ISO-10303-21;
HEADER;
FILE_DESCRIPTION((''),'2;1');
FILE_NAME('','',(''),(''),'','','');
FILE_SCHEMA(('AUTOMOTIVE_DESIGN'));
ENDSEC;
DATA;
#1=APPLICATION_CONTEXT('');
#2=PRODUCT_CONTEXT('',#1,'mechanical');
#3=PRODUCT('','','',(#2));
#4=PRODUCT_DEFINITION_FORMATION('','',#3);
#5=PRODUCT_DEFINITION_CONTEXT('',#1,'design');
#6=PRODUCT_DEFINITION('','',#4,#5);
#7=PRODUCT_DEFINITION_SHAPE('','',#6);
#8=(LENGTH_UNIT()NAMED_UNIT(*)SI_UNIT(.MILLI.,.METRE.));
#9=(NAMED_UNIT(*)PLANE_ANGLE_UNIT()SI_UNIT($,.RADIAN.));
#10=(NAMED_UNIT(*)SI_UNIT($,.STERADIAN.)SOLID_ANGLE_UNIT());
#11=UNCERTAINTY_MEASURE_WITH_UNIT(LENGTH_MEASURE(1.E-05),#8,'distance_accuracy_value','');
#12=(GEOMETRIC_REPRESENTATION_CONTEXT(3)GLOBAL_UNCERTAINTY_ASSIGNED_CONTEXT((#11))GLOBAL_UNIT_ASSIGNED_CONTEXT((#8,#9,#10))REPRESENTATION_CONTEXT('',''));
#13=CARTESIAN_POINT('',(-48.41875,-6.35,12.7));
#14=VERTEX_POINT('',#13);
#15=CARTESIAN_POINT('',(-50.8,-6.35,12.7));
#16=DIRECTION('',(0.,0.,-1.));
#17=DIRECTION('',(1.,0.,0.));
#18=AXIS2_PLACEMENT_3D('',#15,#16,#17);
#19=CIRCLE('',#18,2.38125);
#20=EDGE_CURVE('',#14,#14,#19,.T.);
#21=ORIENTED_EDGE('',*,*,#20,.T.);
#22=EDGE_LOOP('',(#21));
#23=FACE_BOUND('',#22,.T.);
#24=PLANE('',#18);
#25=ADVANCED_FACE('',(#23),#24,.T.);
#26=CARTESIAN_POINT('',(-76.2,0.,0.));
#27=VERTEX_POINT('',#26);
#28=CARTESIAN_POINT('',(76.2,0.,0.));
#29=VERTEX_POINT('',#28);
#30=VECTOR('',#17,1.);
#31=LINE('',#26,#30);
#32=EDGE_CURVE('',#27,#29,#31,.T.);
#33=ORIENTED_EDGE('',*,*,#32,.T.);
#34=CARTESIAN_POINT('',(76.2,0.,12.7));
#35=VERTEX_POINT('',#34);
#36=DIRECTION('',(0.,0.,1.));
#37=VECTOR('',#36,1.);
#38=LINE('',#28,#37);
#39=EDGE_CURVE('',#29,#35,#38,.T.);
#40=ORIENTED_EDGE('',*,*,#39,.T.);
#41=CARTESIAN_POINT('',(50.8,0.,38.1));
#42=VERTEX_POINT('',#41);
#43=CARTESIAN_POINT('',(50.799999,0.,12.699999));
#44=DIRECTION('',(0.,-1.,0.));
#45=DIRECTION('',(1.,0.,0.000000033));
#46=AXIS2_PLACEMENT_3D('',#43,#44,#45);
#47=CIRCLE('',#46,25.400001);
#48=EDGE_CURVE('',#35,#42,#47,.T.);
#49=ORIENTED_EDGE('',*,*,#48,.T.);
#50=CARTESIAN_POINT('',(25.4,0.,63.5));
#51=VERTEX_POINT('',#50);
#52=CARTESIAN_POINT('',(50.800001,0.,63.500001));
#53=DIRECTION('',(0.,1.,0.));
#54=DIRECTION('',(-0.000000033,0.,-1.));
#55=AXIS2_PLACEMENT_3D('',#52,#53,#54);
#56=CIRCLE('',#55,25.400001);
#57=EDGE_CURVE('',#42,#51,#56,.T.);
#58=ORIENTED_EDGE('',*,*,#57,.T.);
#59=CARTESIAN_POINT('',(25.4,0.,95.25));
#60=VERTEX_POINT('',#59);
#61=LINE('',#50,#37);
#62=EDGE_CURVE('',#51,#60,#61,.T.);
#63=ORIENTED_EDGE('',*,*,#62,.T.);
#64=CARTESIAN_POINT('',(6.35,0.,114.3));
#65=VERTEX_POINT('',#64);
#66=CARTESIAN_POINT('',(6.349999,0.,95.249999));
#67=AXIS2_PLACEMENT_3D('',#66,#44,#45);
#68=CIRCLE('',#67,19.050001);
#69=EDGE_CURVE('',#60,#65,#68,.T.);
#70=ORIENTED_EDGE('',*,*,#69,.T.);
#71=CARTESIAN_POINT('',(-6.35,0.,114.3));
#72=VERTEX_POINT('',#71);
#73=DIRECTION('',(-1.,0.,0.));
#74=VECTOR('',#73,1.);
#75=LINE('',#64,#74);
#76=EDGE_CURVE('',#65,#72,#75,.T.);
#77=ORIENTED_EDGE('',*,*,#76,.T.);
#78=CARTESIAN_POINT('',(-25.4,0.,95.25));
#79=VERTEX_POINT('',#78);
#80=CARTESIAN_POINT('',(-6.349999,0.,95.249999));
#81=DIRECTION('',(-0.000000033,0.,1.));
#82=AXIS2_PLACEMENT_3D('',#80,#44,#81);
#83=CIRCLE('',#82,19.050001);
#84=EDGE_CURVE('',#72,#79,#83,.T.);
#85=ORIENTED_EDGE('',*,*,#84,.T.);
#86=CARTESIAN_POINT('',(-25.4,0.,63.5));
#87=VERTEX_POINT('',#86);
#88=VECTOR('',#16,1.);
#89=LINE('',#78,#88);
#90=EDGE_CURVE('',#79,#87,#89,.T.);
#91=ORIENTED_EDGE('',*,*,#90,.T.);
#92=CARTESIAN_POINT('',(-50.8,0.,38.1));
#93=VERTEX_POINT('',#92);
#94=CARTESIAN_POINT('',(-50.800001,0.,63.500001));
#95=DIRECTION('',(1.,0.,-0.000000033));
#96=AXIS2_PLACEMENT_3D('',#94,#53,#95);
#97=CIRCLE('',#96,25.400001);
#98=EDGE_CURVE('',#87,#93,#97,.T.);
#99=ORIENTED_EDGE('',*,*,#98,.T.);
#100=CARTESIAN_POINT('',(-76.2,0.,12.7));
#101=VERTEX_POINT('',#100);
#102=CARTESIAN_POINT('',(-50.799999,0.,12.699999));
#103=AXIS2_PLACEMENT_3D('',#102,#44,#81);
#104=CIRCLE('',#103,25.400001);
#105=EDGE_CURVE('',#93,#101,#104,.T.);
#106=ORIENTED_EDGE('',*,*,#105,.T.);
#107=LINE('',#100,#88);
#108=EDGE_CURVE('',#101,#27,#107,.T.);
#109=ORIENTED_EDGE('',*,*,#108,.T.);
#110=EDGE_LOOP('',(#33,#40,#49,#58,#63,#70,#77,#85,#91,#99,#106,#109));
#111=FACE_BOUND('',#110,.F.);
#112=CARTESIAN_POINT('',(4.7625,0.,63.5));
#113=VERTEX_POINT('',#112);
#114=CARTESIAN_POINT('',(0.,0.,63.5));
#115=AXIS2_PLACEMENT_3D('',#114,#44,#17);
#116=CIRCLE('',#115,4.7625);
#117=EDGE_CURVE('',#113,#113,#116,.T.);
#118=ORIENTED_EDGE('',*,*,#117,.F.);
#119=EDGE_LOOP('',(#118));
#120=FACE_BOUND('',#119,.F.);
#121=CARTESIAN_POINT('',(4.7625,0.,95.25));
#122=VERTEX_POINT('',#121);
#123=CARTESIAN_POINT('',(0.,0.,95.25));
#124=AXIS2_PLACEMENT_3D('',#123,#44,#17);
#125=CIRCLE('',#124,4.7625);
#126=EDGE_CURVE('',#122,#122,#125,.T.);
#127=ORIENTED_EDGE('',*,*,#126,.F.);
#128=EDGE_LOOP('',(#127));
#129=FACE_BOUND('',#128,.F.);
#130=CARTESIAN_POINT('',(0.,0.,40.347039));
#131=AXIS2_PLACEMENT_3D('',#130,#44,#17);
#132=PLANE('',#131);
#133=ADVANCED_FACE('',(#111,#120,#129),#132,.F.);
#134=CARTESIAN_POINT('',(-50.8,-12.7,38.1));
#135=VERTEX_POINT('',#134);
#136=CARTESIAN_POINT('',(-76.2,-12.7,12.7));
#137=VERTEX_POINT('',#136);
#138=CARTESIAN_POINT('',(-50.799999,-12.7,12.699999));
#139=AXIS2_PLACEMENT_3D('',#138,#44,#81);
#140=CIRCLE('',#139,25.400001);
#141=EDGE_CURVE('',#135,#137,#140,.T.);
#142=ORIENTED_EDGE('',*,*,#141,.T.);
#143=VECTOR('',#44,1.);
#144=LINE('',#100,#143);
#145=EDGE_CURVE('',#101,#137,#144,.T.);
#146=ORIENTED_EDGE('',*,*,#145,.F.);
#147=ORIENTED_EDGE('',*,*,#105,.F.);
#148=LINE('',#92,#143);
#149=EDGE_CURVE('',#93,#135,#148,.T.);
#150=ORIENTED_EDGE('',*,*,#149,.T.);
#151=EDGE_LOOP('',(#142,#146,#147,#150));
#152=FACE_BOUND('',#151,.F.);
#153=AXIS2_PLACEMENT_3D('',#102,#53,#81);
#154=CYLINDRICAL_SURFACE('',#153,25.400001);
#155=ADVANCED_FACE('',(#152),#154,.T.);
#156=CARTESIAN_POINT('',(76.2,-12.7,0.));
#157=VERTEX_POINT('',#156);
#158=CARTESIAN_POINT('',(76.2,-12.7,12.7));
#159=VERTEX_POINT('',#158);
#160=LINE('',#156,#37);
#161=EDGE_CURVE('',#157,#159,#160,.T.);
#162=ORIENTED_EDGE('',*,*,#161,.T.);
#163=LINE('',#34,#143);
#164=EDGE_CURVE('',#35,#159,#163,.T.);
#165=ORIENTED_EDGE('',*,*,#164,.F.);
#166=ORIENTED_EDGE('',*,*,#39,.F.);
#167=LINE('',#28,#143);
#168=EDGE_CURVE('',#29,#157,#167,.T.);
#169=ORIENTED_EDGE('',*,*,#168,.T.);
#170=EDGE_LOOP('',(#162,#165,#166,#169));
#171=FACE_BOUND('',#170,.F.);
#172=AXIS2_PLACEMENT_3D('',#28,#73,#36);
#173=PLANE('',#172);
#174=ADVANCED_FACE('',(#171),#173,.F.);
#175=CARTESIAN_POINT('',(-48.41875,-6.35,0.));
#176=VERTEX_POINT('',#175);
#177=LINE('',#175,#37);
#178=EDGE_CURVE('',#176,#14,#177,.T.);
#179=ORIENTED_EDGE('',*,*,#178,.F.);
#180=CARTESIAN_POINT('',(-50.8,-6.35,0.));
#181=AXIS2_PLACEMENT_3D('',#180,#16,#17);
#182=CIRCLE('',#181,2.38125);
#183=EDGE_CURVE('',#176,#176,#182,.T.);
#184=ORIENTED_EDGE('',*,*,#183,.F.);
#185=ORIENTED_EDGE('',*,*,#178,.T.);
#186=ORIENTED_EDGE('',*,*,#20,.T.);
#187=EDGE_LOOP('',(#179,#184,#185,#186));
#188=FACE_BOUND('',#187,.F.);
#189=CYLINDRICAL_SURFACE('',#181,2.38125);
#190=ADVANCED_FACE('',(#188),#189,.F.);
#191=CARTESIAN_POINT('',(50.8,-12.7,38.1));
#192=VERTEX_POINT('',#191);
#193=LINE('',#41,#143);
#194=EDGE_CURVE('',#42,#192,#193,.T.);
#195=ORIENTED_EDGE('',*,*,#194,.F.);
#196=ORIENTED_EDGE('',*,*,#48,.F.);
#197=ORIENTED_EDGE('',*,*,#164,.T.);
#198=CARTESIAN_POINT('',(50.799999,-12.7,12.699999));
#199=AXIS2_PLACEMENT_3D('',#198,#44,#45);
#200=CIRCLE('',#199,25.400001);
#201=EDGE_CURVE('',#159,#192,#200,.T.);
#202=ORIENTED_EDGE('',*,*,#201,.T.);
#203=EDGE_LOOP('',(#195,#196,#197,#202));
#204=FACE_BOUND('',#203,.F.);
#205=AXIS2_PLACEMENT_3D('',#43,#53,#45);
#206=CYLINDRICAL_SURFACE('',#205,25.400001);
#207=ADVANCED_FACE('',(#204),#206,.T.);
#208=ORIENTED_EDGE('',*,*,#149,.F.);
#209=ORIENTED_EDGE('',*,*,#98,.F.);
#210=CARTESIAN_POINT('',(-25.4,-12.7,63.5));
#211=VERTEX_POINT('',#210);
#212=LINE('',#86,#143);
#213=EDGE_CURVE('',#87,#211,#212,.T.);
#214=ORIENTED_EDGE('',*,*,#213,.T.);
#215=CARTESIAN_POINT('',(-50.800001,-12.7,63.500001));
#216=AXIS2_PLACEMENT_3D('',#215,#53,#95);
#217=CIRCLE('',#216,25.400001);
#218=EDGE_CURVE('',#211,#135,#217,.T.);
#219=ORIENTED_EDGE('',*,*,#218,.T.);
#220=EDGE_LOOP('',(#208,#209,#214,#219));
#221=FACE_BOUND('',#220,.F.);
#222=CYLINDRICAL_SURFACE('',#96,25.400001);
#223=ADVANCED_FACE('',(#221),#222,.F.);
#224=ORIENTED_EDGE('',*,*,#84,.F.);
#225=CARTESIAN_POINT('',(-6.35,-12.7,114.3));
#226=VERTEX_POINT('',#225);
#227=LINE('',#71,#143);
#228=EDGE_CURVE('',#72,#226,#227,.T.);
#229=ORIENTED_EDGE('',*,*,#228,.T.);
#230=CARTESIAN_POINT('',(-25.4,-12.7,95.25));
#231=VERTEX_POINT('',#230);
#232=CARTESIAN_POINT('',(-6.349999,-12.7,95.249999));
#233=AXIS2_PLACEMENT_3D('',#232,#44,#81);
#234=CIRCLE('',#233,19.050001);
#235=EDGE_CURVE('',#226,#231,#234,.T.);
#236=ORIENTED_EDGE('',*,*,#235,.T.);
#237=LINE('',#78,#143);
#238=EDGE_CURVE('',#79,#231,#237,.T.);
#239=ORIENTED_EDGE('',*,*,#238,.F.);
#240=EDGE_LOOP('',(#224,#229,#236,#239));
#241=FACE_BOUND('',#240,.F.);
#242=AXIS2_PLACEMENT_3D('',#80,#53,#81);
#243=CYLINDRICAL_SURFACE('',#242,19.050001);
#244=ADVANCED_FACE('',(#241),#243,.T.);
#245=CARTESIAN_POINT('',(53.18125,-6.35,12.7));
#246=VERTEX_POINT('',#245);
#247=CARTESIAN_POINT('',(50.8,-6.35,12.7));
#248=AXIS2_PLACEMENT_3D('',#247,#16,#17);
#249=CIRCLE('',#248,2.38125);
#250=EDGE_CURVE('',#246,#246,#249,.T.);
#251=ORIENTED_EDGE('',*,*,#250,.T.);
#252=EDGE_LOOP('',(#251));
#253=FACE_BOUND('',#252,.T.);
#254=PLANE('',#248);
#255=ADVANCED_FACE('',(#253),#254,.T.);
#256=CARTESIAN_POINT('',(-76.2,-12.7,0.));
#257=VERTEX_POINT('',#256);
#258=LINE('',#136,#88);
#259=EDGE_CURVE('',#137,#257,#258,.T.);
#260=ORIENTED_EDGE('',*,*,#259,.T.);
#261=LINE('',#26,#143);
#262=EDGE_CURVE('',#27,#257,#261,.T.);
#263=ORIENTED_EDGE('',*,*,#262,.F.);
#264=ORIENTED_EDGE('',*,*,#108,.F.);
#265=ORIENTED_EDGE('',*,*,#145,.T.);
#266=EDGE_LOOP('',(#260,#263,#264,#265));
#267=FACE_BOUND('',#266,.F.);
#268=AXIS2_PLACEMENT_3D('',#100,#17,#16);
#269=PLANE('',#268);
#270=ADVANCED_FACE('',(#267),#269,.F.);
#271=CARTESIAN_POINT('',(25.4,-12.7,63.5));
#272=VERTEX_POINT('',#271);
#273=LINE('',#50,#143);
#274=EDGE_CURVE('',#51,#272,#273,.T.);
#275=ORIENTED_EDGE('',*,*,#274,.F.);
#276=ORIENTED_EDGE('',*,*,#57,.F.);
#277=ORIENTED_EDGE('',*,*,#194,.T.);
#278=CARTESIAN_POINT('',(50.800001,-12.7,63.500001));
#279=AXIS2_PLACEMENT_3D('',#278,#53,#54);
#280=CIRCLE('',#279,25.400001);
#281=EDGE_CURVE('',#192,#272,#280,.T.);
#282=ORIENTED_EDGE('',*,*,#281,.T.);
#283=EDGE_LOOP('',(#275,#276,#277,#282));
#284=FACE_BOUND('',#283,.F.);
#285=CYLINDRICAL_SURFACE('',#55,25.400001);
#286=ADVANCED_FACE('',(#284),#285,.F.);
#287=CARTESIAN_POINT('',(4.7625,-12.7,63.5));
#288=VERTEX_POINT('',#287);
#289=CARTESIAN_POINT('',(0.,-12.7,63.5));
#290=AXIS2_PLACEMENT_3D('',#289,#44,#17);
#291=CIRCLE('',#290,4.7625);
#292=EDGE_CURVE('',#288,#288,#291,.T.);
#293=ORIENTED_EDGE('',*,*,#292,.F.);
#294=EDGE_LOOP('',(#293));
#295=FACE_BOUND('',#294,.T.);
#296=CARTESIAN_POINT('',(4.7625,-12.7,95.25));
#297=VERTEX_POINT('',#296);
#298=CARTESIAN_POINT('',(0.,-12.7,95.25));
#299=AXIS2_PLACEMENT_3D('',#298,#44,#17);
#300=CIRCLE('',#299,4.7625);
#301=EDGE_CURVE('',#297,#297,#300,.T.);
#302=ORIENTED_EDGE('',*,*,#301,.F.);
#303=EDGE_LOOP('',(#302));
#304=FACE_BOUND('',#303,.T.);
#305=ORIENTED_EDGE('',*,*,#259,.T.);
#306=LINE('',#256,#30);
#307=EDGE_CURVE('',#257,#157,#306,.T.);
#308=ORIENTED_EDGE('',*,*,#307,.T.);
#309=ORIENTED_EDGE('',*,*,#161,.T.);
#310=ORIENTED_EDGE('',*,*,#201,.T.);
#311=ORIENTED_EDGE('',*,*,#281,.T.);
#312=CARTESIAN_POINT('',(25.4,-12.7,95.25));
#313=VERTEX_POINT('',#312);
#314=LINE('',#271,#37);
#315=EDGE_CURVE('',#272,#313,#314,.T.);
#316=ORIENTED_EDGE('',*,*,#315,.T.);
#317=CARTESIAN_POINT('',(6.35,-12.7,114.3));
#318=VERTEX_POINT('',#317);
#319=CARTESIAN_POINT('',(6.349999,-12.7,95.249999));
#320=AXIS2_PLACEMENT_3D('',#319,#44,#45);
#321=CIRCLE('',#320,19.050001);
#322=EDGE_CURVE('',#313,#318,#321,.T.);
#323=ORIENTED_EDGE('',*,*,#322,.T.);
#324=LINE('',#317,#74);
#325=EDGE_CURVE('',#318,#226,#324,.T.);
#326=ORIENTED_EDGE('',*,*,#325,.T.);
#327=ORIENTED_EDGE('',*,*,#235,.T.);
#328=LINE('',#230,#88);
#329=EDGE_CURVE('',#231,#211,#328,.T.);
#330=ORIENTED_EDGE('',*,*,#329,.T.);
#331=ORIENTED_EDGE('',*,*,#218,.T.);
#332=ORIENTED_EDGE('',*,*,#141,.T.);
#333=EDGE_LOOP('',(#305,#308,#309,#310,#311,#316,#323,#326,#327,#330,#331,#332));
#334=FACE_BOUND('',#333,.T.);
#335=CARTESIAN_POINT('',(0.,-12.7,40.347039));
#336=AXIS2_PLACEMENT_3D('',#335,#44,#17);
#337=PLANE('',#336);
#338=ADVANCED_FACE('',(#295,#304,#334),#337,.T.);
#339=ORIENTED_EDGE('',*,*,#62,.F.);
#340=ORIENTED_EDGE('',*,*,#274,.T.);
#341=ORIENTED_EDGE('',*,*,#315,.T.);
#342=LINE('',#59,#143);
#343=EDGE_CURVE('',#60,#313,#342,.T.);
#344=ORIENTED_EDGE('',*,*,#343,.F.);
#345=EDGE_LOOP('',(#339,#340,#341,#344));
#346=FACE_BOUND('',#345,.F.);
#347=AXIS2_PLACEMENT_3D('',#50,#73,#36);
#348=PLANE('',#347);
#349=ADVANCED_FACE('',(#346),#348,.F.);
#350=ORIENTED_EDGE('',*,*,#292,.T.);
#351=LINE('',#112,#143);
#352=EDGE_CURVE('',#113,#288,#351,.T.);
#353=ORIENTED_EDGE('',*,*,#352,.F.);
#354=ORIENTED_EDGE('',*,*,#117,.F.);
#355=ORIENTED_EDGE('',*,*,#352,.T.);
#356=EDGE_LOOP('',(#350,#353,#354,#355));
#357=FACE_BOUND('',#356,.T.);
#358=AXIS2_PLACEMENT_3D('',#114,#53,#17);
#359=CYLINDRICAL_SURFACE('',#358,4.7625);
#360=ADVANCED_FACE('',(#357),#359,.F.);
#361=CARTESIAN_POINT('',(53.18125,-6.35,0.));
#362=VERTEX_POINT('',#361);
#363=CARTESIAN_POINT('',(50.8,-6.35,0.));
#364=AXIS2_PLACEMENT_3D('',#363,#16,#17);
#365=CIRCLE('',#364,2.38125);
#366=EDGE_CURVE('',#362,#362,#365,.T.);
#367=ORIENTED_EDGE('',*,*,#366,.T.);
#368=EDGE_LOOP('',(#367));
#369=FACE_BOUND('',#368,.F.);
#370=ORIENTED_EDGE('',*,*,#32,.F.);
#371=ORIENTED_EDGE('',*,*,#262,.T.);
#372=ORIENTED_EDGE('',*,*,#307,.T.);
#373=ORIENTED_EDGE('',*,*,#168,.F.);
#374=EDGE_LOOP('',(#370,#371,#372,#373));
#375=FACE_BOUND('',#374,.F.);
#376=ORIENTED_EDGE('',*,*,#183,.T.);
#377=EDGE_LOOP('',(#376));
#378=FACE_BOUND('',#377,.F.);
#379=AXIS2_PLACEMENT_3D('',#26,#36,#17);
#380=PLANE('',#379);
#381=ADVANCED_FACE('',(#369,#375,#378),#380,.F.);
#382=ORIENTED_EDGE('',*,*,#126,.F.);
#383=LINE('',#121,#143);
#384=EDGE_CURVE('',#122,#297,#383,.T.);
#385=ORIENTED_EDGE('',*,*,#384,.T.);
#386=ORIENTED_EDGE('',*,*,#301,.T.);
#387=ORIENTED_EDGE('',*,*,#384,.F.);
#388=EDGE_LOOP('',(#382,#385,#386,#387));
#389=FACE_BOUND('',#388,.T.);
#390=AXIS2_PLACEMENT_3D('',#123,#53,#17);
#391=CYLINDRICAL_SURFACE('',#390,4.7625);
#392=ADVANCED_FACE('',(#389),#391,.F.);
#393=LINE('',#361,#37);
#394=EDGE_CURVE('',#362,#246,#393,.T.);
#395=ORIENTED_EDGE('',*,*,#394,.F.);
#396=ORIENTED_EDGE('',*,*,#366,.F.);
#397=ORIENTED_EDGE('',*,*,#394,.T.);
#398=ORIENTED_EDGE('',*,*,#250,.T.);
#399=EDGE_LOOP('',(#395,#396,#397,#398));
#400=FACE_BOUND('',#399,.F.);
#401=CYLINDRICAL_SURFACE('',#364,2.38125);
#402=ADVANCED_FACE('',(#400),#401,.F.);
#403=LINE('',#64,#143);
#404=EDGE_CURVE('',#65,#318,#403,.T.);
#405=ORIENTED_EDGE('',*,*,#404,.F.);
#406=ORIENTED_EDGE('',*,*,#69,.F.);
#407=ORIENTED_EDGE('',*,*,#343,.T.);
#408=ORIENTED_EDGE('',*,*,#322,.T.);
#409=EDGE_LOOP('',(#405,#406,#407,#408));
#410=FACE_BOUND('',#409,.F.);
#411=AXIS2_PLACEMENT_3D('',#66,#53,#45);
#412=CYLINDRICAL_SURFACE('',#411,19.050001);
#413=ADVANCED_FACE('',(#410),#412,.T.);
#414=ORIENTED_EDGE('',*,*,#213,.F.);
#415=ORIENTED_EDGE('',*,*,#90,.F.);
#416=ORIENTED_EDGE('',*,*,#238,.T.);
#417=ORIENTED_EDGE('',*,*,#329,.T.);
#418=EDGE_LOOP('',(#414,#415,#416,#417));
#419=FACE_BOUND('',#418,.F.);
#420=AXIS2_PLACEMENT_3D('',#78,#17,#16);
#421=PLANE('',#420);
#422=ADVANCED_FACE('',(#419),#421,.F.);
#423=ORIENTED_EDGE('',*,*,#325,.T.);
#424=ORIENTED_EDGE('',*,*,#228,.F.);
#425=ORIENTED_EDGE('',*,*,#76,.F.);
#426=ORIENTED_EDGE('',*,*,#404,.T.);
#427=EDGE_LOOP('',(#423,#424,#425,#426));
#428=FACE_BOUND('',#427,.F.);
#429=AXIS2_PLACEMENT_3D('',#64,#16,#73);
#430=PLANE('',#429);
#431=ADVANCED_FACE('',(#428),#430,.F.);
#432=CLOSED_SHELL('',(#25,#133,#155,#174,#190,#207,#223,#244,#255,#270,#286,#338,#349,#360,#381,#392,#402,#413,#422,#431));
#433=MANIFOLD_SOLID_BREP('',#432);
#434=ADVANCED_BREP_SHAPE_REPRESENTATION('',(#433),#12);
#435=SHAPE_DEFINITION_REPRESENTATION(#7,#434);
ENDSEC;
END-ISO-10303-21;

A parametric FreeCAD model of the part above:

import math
import FreeCAD as App
import Part
import Sketcher

V = App.Vector
Q = App.Units.Quantity

doc = App.newDocument("Part")
body = doc.addObject("PartDesign::Body", "Body")

# Sketch on XZ plane
sketch1 = doc.addObject("Sketcher::SketchObject", "Sketch")
body.addObject(sketch1)
sketch1.AttachmentSupport = (doc.XZ_Plane, [""])
sketch1.MapMode = "FlatFace"
sketch1.addGeometry(Part.LineSegment(V(-76.2, 12.7, 0), V(-76.2, 0, 0)), False)
sketch1.addGeometry(Part.LineSegment(V(-76.2, 0, 0), V(76.2, 0, 0)), False)
sketch1.addGeometry(Part.LineSegment(V(76.2, 0, 0), V(76.2, 12.7, 0)), False)
sketch1.addGeometry(Part.ArcOfCircle(Part.Circle(V(50.8, 12.7, 0), V(0, 0, 1), 25.4), math.radians(0), math.radians(90)), False)
sketch1.addGeometry(Part.ArcOfCircle(Part.Circle(V(50.8, 63.5, 0), V(0, 0, 1), 25.4), math.radians(-180), math.radians(-90)), False)
sketch1.addGeometry(Part.LineSegment(V(25.4, 63.5, 0), V(25.4, 95.2, 0)), False)
sketch1.addGeometry(Part.ArcOfCircle(Part.Circle(V(6.3, 95.2, 0), V(0, 0, 1), 19.1), math.radians(0), math.radians(90)), False)
sketch1.addGeometry(Part.LineSegment(V(6.3, 114.3, 0), V(-6.3, 114.3, 0)), False)
sketch1.addGeometry(Part.ArcOfCircle(Part.Circle(V(-6.3, 95.2, 0), V(0, 0, 1), 19.1), math.radians(90), math.radians(180)), False)
sketch1.addGeometry(Part.LineSegment(V(-25.4, 95.2, 0), V(-25.4, 63.5, 0)), False)
sketch1.addGeometry(Part.ArcOfCircle(Part.Circle(V(-50.8, 63.5, 0), V(0, 0, 1), 25.4), math.radians(-90), math.radians(0)), False)
sketch1.addGeometry(Part.ArcOfCircle(Part.Circle(V(-50.8, 12.7, 0), V(0, 0, 1), 25.4), math.radians(90), math.radians(180)), False)
sketch1.addGeometry(Part.Circle(V(0, 63.5, 0), V(0, 0, 1), 4.8), False)
sketch1.addGeometry(Part.Circle(V(0, 95.2, 0), V(0, 0, 1), 4.8), False)
sketch1.addConstraint(Sketcher.Constraint("Coincident", 0, 2, 1, 1))
sketch1.addConstraint(Sketcher.Constraint("Coincident", 1, 2, 2, 1))
sketch1.addConstraint(Sketcher.Constraint("Tangent", 2, 2, 3, 1))
sketch1.addConstraint(Sketcher.Constraint("Tangent", 3, 2, 4, 2))
sketch1.addConstraint(Sketcher.Constraint("Tangent", 4, 1, 5, 1))
sketch1.addConstraint(Sketcher.Constraint("Tangent", 5, 2, 6, 1))
sketch1.addConstraint(Sketcher.Constraint("Tangent", 6, 2, 7, 1))
sketch1.addConstraint(Sketcher.Constraint("Tangent", 7, 2, 8, 1))
sketch1.addConstraint(Sketcher.Constraint("Tangent", 8, 2, 9, 1))
sketch1.addConstraint(Sketcher.Constraint("Tangent", 9, 2, 10, 2))
sketch1.addConstraint(Sketcher.Constraint("Tangent", 10, 1, 11, 1))
sketch1.addConstraint(Sketcher.Constraint("Tangent", 11, 2, 0, 1))
sketch1.addConstraint(Sketcher.Constraint("Vertical", 0))
sketch1.addConstraint(Sketcher.Constraint("Horizontal", 1))
sketch1.addConstraint(Sketcher.Constraint("Vertical", 2))
sketch1.addConstraint(Sketcher.Constraint("Vertical", 5))
sketch1.addConstraint(Sketcher.Constraint("Horizontal", 7))
sketch1.addConstraint(Sketcher.Constraint("Vertical", 9))
sketch1.addConstraint(Sketcher.Constraint("Equal", 3, 4))
sketch1.addConstraint(Sketcher.Constraint("Equal", 6, 8))
sketch1.addConstraint(Sketcher.Constraint("Equal", 4, 10))
sketch1.addConstraint(Sketcher.Constraint("Equal", 10, 11))
sketch1.addConstraint(Sketcher.Constraint("Equal", 12, 13))
sketch1.addConstraint(Sketcher.Constraint("Symmetric", 0, 2, 1, 2, -1, 1))
sketch1.addConstraint(Sketcher.Constraint("Symmetric", 4, 3, 10, 3, -2))
sketch1.addConstraint(Sketcher.Constraint("PointOnObject", 12, 3, -2))
sketch1.addConstraint(Sketcher.Constraint("PointOnObject", 13, 3, -2))
sketch1.addConstraint(Sketcher.Constraint("Horizontal", 10, 3, 12, 3))
sketch1.addConstraint(Sketcher.Constraint("Horizontal", 8, 3, 13, 3))
sketch1.addConstraint(Sketcher.Constraint("Vertical", 3, 3, 4, 3))
sketch1.addConstraint(Sketcher.Constraint("Equal", 7, 0))
sketch1.addConstraint(Sketcher.Constraint("Radius", 3, Q("1 in")))
sketch1.addConstraint(Sketcher.Constraint("DistanceX", 1, 1, 1, 2, Q("6 in")))
sketch1.addConstraint(Sketcher.Constraint("Radius", 6, Q("0.75 in")))
sketch1.addConstraint(Sketcher.Constraint("Diameter", 12, Q("0.375 in")))
sketch1.addConstraint(Sketcher.Constraint("DistanceY", 12, 3, 6, 2, Q("2 in")))
pad1 = doc.addObject("PartDesign::Pad", "Pad")
body.addObject(pad1)
pad1.Profile = sketch1
pad1.Length = Q("0.5 in")

# Sketch on XY plane
sketch2 = doc.addObject("Sketcher::SketchObject", "Sketch001")
body.addObject(sketch2)
sketch2.AttachmentSupport = (doc.XY_Plane, [""])
sketch2.MapMode = "FlatFace"
sketch2.addGeometry(Part.Circle(V(-50.8, -6.3, 0), V(0, 0, 1), 2.4), False)
sketch2.addGeometry(Part.Circle(V(50.8, -6.3, 0), V(0, 0, 1), 2.4), False)
sketch2.addConstraint(Sketcher.Constraint("Equal", 0, 1))
sketch2.addConstraint(Sketcher.Constraint("Symmetric", 0, 3, 1, 3, -2))
sketch2.addConstraint(Sketcher.Constraint("Diameter", 0, Q("0.1875 in")))
sketch2.addConstraint(Sketcher.Constraint("DistanceX", 0, 3, -1, 1, Q("2 in")))
sketch2.addConstraint(Sketcher.Constraint("DistanceY", 0, 3, -1, 1, Q("0.25 in")))
pocket1 = doc.addObject("PartDesign::Pocket", "Pocket")
body.addObject(pocket1)
pocket1.Profile = sketch2
pocket1.Length = Q("0.5 in")
pocket1.Reversed = True

doc.recompute()
